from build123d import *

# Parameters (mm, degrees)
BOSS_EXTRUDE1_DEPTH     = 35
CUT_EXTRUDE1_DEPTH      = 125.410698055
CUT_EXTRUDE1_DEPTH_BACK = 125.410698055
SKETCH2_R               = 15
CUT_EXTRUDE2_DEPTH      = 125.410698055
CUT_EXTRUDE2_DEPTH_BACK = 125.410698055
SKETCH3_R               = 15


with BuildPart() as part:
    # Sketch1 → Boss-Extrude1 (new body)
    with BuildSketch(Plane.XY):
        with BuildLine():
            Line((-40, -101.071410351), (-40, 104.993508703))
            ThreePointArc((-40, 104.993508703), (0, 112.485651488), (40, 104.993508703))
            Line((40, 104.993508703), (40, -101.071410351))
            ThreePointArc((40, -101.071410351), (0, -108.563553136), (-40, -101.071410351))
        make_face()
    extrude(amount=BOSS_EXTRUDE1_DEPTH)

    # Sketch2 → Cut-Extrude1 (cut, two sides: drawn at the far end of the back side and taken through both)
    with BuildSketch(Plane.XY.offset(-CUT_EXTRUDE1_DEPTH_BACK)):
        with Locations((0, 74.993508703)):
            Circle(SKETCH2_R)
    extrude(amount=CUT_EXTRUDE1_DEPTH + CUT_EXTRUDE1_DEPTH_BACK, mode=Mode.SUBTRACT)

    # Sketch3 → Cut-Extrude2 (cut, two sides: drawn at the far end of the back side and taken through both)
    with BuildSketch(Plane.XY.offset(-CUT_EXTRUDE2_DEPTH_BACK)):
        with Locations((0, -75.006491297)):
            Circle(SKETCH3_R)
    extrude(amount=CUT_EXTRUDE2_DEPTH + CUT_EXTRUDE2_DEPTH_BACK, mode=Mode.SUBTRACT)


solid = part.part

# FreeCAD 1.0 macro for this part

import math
import FreeCAD as App
import Part
import Sketcher
from FreeCAD import Vector
Q = App.Units.Quantity

doc = App.newDocument("Part")
params = doc.addObject("Spreadsheet::Sheet", "Params")
for row, (alias, value) in enumerate([
    ("pad1_length", "35 mm"),
    ("sketch2_diameter", "30 mm"),
    ("sketch3_diameter", "30 mm"),
], start=1):
    params.set(f"A{row}", alias)
    params.set(f"B{row}", "=" + value)
    params.setAlias(f"B{row}", alias)

body = doc.addObject("PartDesign::Body", "Body")

# Sketch on XY plane
sketch1 = body.newObject("Sketcher::SketchObject", "Sketch")
sketch1.AttachmentSupport = (doc.getObject("XY_Plane"), [""])
sketch1.MapMode = "FlatFace"
sketch1.addGeometry([
    Part.LineSegment(Vector(-40, 104.993509, 0), Vector(-40, -101.07141, 0)),
    Part.ArcOfCircle(Part.Circle(Vector(0, 1.961049, 0), Vector(0, 0, 1), 110.524602), math.radians(-111.217565), math.radians(-68.782435)),
    Part.LineSegment(Vector(40, -101.07141, 0), Vector(40, 104.993509, 0)),
    Part.ArcOfCircle(Part.Circle(Vector(0, 1.961049, 0), Vector(0, 0, 1), 110.524602), math.radians(68.782435), math.radians(111.217565)),
], False)
sketch1.addConstraint([
    Sketcher.Constraint("Coincident", 0, 2, 1, 1),
    Sketcher.Constraint("Coincident", 1, 2, 2, 1),
    Sketcher.Constraint("Coincident", 2, 2, 3, 1),
    Sketcher.Constraint("Coincident", 3, 2, 0, 1),
    Sketcher.Constraint("Vertical", 0),
    Sketcher.Constraint("Vertical", 2),
    Sketcher.Constraint("Coincident", 3, 3, 1, 3),
    Sketcher.Constraint("Equal", 1, 3),
    Sketcher.Constraint("Symmetric", 0, 2, 1, 2, -2),
    Sketcher.Constraint("DistanceX", 0, 2, -1, 1, Q("40 mm")),
    Sketcher.Constraint("Radius", 1, Q("110.524602 mm")),
    Sketcher.Constraint("DistanceY", -1, 1, 1, 3, Q("1.961049 mm")),
])
pad1 = body.newObject("PartDesign::Pad", "Pad")
pad1.Profile = sketch1
pad1.setExpression("Length", "Params.pad1_length")

# Sketch on XY plane
sketch2 = body.newObject("Sketcher::SketchObject", "Sketch001")
sketch2.AttachmentSupport = (doc.getObject("XY_Plane"), [""])
sketch2.MapMode = "FlatFace"
sketch2.addGeometry(Part.Circle(Vector(0, 74.993509, 0), Vector(0, 0, 1), 15), False)
sketch2.addConstraint([
    Sketcher.Constraint("PointOnObject", 0, 3, -2),
    Sketcher.Constraint("Diameter", 0, Q("30 mm")),
    Sketcher.Constraint("DistanceY", -1, 1, 0, 3, Q("74.993509 mm")),
])
sketch2.setExpression("Constraints[1]", "Params.sketch2_diameter")
pocket1 = body.newObject("PartDesign::Pocket", "Pocket")
pocket1.Profile = sketch2
pocket1.Type = "ThroughAll"
pocket1.Midplane = True

# Sketch on XY plane
sketch3 = body.newObject("Sketcher::SketchObject", "Sketch002")
sketch3.AttachmentSupport = (doc.getObject("XY_Plane"), [""])
sketch3.MapMode = "FlatFace"
sketch3.addGeometry(Part.Circle(Vector(0, -75.006491, 0), Vector(0, 0, 1), 15), False)
sketch3.addConstraint([
    Sketcher.Constraint("PointOnObject", 0, 3, -2),
    Sketcher.Constraint("Diameter", 0, Q("30 mm")),
    Sketcher.Constraint("DistanceY", 0, 3, -1, 1, Q("75.006491 mm")),
])
sketch3.setExpression("Constraints[1]", "Params.sketch3_diameter")
pocket2 = body.newObject("PartDesign::Pocket", "Pocket001")
pocket2.Profile = sketch3
pocket2.Type = "ThroughAll"
pocket2.Midplane = True

doc.recompute()
